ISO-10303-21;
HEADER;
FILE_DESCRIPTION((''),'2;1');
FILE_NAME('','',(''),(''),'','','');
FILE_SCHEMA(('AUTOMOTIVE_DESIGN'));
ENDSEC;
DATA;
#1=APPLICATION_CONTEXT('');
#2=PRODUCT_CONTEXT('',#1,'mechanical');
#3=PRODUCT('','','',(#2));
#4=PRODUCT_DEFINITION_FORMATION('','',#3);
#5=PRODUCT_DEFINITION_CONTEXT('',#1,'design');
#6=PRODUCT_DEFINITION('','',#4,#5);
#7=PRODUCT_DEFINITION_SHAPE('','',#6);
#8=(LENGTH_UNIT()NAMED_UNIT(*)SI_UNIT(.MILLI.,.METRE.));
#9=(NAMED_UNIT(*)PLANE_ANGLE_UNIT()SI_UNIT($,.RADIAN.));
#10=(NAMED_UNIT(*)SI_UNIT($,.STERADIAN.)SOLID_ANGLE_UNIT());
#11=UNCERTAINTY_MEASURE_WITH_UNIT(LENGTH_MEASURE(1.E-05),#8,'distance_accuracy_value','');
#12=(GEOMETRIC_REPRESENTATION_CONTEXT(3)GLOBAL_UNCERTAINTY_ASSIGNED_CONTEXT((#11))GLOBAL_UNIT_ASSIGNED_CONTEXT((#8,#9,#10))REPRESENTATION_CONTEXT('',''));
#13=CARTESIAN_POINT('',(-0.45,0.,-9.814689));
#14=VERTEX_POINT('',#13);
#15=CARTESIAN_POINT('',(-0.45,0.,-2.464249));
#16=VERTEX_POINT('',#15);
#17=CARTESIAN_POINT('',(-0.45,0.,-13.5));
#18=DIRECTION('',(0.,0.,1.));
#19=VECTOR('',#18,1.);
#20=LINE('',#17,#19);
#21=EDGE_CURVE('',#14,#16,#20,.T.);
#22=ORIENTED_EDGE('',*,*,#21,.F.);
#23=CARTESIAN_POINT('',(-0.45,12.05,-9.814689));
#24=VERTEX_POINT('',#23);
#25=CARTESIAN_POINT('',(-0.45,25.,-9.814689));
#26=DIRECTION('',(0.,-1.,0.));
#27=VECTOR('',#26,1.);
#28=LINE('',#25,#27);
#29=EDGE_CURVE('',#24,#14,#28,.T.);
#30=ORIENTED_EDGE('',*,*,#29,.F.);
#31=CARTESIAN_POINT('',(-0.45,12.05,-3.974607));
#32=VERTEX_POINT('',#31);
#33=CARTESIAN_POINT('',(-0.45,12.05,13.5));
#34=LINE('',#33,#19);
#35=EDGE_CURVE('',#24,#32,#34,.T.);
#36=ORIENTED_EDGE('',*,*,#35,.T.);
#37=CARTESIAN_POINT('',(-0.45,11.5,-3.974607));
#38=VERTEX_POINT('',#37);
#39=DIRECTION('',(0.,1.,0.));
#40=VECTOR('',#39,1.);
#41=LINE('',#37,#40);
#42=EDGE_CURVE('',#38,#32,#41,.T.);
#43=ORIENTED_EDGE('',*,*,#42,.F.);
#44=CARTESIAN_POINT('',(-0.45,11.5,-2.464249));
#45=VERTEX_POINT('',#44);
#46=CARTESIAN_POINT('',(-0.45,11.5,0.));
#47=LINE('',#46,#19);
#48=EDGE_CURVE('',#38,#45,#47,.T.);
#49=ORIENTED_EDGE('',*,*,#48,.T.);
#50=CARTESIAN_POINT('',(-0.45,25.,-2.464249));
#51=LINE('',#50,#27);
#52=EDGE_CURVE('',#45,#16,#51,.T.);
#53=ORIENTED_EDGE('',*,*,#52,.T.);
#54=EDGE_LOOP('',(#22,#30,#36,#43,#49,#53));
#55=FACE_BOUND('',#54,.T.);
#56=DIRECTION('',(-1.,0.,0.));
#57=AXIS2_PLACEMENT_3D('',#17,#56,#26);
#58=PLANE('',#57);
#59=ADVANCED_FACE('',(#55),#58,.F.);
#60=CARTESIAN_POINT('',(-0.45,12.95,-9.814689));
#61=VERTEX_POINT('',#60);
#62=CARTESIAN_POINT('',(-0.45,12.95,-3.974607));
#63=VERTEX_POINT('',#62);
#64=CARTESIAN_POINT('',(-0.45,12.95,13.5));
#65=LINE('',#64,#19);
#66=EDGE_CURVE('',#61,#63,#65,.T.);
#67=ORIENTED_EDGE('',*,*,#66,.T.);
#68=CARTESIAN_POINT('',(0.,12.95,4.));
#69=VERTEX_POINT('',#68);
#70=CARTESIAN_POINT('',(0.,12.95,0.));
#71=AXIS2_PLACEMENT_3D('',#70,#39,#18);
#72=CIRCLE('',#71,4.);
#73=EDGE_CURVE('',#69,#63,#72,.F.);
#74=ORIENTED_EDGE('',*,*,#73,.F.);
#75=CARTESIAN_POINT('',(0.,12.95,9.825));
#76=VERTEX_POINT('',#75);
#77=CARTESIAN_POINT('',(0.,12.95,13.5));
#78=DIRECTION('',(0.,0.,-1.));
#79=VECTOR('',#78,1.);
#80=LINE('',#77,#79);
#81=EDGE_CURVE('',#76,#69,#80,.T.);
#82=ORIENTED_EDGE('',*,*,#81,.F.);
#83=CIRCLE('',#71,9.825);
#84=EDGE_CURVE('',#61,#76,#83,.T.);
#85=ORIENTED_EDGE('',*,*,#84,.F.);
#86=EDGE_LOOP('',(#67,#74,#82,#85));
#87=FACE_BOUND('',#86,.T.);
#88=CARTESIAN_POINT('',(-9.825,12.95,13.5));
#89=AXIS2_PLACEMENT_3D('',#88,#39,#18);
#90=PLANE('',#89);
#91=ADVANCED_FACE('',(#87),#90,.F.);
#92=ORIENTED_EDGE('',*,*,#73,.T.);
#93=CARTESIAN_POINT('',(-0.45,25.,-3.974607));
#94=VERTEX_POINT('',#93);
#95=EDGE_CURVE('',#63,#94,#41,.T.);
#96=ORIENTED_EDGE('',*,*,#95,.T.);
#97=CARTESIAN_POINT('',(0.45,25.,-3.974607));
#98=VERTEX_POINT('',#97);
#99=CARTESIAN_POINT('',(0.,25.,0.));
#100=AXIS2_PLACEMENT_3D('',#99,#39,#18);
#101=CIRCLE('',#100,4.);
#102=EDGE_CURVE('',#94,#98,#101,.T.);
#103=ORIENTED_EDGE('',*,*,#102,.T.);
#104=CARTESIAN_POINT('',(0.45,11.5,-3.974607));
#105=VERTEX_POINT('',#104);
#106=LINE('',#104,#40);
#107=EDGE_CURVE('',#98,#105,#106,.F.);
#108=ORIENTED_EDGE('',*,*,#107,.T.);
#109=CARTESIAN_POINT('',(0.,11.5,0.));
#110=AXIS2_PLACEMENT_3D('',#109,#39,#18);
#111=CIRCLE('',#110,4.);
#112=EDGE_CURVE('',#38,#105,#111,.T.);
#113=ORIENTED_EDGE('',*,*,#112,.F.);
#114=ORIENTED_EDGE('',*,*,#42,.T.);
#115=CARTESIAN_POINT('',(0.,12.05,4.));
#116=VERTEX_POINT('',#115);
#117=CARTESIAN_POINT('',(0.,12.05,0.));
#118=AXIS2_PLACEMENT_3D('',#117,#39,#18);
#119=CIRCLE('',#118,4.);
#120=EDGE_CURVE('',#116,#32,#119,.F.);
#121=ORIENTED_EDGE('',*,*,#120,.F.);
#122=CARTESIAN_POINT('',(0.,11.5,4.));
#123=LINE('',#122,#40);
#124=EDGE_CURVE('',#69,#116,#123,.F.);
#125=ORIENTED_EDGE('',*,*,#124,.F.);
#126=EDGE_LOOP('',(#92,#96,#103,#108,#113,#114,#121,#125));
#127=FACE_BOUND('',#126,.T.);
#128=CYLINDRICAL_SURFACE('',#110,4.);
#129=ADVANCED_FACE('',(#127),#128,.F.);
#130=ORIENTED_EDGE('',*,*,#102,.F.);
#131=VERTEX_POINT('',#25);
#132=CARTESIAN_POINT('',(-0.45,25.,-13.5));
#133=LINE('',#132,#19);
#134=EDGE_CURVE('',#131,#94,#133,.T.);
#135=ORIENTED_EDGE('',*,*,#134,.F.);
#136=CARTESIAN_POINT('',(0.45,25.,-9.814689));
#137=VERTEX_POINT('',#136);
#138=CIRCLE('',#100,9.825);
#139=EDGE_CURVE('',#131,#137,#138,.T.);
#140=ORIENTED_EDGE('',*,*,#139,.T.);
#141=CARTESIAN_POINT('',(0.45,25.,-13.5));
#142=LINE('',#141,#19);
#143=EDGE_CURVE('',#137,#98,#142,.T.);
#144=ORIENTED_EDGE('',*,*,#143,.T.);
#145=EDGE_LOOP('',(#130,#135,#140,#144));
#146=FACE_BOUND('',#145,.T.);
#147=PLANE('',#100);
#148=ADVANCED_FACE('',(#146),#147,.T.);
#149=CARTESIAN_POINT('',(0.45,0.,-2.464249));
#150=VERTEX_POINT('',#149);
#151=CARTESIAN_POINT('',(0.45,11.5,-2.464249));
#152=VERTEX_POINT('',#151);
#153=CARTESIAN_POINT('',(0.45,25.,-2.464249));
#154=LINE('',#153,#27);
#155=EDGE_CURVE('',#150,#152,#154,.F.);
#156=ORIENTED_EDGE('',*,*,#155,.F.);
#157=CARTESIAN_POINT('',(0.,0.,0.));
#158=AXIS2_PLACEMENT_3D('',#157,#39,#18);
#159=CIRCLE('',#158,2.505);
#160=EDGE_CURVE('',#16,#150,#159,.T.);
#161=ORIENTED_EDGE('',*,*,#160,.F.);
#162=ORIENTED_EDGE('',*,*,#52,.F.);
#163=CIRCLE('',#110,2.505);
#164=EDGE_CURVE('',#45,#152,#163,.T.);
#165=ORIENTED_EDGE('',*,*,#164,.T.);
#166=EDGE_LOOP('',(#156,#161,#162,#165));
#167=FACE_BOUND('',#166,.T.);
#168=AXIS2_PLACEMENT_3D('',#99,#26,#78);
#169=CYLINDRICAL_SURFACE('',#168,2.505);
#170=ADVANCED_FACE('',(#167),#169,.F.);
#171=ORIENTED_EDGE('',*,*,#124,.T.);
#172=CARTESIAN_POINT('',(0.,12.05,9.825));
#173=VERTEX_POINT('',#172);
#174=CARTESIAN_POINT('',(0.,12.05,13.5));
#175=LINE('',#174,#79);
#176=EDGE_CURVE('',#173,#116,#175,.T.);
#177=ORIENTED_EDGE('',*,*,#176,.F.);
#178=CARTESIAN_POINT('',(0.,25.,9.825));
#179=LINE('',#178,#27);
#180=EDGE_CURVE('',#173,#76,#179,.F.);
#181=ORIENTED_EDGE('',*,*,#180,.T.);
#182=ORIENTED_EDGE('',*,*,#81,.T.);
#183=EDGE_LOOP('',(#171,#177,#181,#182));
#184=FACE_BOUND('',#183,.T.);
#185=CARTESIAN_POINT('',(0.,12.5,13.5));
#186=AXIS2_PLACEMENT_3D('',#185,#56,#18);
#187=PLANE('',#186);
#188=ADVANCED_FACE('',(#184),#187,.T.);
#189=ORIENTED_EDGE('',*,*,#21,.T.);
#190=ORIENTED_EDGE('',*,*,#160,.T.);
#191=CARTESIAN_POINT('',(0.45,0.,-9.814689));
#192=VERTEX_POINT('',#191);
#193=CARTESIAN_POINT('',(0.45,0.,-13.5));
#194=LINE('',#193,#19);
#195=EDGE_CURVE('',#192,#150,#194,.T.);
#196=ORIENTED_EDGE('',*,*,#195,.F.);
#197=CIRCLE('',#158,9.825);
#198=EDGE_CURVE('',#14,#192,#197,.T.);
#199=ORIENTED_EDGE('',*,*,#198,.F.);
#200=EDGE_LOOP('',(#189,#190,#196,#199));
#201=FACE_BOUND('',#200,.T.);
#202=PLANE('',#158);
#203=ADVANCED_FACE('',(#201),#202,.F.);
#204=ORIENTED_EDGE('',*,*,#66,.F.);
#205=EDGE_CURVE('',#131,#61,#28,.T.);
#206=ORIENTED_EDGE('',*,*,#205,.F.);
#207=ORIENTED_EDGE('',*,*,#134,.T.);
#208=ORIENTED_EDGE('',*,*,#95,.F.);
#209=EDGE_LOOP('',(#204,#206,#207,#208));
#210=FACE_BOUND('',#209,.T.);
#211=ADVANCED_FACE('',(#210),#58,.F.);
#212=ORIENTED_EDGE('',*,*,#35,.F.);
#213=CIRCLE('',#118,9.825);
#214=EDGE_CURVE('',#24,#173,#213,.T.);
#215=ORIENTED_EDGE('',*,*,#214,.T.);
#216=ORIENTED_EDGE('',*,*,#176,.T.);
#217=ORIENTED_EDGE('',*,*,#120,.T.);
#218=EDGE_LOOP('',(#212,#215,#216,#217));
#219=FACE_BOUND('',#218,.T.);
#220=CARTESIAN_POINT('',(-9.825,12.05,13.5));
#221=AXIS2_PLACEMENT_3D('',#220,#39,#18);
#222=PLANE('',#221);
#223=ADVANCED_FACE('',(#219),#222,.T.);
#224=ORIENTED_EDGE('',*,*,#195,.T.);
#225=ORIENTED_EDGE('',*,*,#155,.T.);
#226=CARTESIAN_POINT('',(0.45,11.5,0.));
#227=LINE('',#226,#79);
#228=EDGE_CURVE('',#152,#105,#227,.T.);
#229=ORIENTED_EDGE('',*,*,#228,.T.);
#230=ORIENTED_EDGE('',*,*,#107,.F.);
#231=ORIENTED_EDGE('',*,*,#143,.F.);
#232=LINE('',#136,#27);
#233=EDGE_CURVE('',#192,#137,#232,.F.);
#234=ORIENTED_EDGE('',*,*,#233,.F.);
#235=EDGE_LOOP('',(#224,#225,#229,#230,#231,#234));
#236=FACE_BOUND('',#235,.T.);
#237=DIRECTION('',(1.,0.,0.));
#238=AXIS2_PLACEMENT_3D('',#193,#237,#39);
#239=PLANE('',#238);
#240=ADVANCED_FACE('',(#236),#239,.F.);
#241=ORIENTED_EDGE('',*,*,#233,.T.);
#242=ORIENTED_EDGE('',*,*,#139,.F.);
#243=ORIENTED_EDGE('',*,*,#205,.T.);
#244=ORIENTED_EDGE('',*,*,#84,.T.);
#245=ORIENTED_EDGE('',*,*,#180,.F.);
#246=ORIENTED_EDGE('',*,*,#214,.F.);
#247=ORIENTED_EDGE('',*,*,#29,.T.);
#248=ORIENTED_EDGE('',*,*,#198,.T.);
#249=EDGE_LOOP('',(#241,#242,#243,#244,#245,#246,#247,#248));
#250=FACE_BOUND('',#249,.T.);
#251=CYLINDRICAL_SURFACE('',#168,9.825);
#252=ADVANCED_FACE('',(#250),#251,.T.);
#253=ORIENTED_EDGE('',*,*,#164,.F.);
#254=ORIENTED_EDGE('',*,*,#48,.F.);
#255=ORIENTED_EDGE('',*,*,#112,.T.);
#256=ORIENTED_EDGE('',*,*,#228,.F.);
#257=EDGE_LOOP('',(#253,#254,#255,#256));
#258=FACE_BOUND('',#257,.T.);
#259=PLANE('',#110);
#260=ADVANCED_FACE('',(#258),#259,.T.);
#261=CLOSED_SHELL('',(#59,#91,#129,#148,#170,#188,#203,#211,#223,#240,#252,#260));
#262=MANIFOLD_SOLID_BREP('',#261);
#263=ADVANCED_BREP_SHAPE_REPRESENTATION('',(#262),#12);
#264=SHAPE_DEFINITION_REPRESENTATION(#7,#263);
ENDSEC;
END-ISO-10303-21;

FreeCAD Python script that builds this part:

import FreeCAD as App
import Part
import Sketcher

V = App.Vector


def add_polygon(sketch, points):
    """Adds a closed chain of lines whose ends are joined by coincident constraints."""
    first, n = sketch.GeometryCount, len(points)
    for a, b in zip(points, points[1:] + points[:1]):
        sketch.addGeometry(Part.LineSegment(App.Vector(*a, 0), App.Vector(*b, 0)), False)
    for i in range(n):
        sketch.addConstraint(Sketcher.Constraint("Coincident", first + i, 2, first + (i + 1) % n, 1))

doc = App.newDocument("Part")
params = doc.addObject("Spreadsheet::Sheet", "Params")
for row, (alias, value) in enumerate([
    ("sketch1_diameter", "19.65 mm"),
    ("sketch1_diameter2", "5.01 mm"),
    ("pad1_length", "25 mm"),
    ("sketch2_diameter", "8 mm"),
    ("pocket1_length", "13.5 mm"),
    ("sketch3_height", "0.9 mm"),
    ("sketch4_height", "25 mm"),
    ("sketch4_width", "0.9 mm"),
    ("pocket3_length", "13.5 mm"),
], start=1):
    params.set(f"A{row}", alias)
    params.set(f"B{row}", "=" + value)
    params.setAlias(f"B{row}", alias)

body = doc.addObject("PartDesign::Body", "Body")

sketch1 = doc.addObject("Sketcher::SketchObject", "Sketch")
body.addObject(sketch1)
sketch1.AttachmentSupport = (doc.XZ_Plane, [""])
sketch1.MapMode = "FlatFace"
sketch1.addGeometry([
    Part.Circle(V(0, 0, 0), V(0, 0, 1), 9.8),
    Part.Circle(V(0, 0, 0), V(0, 0, 1), 2.5),
], False)
sketch1.addConstraint([
    Sketcher.Constraint("Coincident", 0, 3, -1, 1),
    Sketcher.Constraint("Coincident", 1, 3, -1, 1),
    Sketcher.Constraint("Diameter", 0, 19.65),
    Sketcher.Constraint("Diameter", 1, 5.01),
])
sketch1.setExpression("Constraints[2]", "Params.sketch1_diameter")
sketch1.setExpression("Constraints[3]", "Params.sketch1_diameter2")
pad1 = doc.addObject("PartDesign::Pad", "Pad")
body.addObject(pad1)
pad1.Profile = sketch1
pad1.setExpression("Length", "Params.pad1_length")
pad1.Reversed = True

sketch2 = doc.addObject("Sketcher::SketchObject", "Sketch001")
body.addObject(sketch2)
sketch2.AttachmentSupport = (doc.XZ_Plane, [""])
sketch2.MapMode = "FlatFace"
sketch2.AttachmentOffset = App.Placement(V(0, 0, -25), App.Rotation())
sketch2.addGeometry(Part.Circle(V(0, 0, 0), V(0, 0, 1), 4), False)
sketch2.addConstraint([
    Sketcher.Constraint("Coincident", 0, 3, -1, 1),
    Sketcher.Constraint("Diameter", 0, 8.0),
])
sketch2.setExpression("Constraints[1]", "Params.sketch2_diameter")
pocket1 = doc.addObject("PartDesign::Pocket", "Pocket")
body.addObject(pocket1)
pocket1.Profile = sketch2
pocket1.setExpression("Length", "Params.pocket1_length")
pocket1.Reversed = True

sketch3 = doc.addObject("Sketcher::SketchObject", "Sketch002")
body.addObject(sketch3)
sketch3.AttachmentSupport = (doc.XY_Plane, [""])
sketch3.MapMode = "FlatFace"
add_polygon(sketch3, [(-9.8, 12.9), (-9.8, 12.1), (0, 12.1), (0, 12.9)])
sketch3.addConstraint([
    Sketcher.Constraint("Vertical", 0),
    Sketcher.Constraint("Horizontal", 1),
    Sketcher.Constraint("Vertical", 2),
    Sketcher.Constraint("Horizontal", 3),
    Sketcher.Constraint("PointOnObject", 1, 2, -2),
    Sketcher.Constraint("DistanceY", 0, 2, 0, 1, 0.9),
    Sketcher.Constraint("DistanceX", 1, 1, 1, 2, 9.825),
    Sketcher.Constraint("DistanceY", -1, 1, 0, 2, 12.05),
])
sketch3.setExpression("Constraints[9]", "Params.sketch3_height")
pocket2 = doc.addObject("PartDesign::Pocket", "Pocket001")
body.addObject(pocket2)
pocket2.Profile = sketch3
pocket2.Type = "ThroughAll"
pocket2.Midplane = True

sketch4 = doc.addObject("Sketcher::SketchObject", "Sketch003")
body.addObject(sketch4)
sketch4.AttachmentSupport = (doc.XY_Plane, [""])
sketch4.MapMode = "FlatFace"
add_polygon(sketch4, [(-0.5, 0), (0.5, 0), (0.5, 25), (-0.5, 25)])
sketch4.addConstraint([
    Sketcher.Constraint("Horizontal", 0),
    Sketcher.Constraint("Vertical", 1),
    Sketcher.Constraint("Horizontal", 2),
    Sketcher.Constraint("Vertical", 3),
    Sketcher.Constraint("Symmetric", 0, 2, 3, 2, -1, 1),
    Sketcher.Constraint("DistanceY", 1, 1, 1, 2, 25.0),
    Sketcher.Constraint("DistanceX", 0, 1, 0, 2, 0.9),
])
sketch4.setExpression("Constraints[9]", "Params.sketch4_height")
sketch4.setExpression("Constraints[10]", "Params.sketch4_width")
pocket3 = doc.addObject("PartDesign::Pocket", "Pocket002")
body.addObject(pocket3)
pocket3.Profile = sketch4
pocket3.setExpression("Length", "Params.pocket3_length")

doc.recompute()
